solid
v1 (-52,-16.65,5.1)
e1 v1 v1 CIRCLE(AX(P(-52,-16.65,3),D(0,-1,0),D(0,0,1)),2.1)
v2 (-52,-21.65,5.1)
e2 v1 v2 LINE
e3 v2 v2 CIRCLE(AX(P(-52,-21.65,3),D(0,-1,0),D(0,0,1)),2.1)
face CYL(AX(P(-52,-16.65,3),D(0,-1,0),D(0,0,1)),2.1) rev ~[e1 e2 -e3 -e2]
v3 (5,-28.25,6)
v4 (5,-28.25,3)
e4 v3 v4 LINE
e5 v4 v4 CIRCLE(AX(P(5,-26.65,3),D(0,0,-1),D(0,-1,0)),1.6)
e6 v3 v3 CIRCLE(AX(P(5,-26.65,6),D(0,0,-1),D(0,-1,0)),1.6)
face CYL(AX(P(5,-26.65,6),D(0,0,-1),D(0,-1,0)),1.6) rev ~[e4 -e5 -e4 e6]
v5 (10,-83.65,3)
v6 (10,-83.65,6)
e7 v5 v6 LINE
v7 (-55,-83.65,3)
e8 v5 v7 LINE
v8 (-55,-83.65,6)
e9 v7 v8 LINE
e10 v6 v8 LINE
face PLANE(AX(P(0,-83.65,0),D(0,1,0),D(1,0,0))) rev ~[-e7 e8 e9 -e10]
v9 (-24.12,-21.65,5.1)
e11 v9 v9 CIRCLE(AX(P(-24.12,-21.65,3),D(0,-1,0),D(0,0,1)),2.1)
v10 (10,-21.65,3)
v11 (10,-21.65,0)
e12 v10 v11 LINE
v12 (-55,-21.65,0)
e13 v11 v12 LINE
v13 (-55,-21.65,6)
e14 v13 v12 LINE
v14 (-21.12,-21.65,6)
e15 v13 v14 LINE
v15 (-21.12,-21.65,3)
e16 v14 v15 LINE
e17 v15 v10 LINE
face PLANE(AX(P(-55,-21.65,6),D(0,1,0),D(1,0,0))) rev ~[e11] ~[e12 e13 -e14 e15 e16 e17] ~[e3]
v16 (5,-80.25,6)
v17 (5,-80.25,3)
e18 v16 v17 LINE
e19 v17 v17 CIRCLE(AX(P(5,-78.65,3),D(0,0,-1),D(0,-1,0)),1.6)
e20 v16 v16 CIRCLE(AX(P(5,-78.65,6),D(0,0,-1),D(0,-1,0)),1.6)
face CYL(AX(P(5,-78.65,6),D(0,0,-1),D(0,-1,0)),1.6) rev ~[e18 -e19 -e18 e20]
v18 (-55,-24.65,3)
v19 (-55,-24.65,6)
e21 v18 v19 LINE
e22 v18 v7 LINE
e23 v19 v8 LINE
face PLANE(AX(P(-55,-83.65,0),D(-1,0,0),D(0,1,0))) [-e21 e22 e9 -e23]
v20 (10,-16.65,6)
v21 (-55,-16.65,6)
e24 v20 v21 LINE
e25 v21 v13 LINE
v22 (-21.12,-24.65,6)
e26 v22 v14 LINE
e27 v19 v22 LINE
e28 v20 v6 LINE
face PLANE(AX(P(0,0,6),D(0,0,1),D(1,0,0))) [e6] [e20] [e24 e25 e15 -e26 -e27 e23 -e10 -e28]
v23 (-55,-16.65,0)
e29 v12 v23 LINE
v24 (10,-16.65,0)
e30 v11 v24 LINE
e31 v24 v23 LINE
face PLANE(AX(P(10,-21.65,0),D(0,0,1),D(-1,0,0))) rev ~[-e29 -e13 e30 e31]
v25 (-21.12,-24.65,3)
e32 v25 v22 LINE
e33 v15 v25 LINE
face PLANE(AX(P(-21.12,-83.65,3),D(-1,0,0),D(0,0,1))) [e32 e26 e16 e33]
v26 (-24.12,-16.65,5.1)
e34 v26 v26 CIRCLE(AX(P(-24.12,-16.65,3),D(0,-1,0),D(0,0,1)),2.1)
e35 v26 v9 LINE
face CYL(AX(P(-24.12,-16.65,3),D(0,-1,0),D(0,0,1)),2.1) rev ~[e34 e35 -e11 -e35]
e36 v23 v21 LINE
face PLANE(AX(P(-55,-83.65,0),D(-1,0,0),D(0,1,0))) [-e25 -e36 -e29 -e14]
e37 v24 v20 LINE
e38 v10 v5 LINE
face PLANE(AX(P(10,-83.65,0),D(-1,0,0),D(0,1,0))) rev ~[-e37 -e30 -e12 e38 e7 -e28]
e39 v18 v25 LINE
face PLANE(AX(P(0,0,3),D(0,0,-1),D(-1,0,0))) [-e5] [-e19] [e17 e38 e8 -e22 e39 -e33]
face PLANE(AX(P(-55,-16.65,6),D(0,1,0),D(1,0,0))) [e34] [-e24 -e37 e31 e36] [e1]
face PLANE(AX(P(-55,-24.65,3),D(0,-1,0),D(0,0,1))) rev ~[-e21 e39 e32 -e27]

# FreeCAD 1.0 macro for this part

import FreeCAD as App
import Part
import Sketcher
from FreeCAD import Vector


def add_polygon(sketch, points):
    """Adds a closed chain of lines whose ends are joined by coincident constraints."""
    first, n = sketch.GeometryCount, len(points)
    for a, b in zip(points, points[1:] + points[:1]):
        sketch.addGeometry(Part.LineSegment(App.Vector(*a, 0), App.Vector(*b, 0)), False)
    for i in range(n):
        sketch.addConstraint(Sketcher.Constraint("Coincident", first + i, 2, first + (i + 1) % n, 1))

doc = App.newDocument("Part")
body = doc.addObject("PartDesign::Body", "Body")

# Sketch on XY plane
sketch1 = doc.addObject("Sketcher::SketchObject", "Sketch")
body.addObject(sketch1)
sketch1.AttachmentSupport = (doc.XY_Plane, [""])
sketch1.MapMode = "FlatFace"
add_polygon(sketch1, [(10, -83.65), (10, -21.65), (-55, -21.65), (-55, -83.65)])  # lines 0-3
sketch1.addConstraint([
    Sketcher.Constraint("Vertical", 0),
    Sketcher.Constraint("Horizontal", 1),
    Sketcher.Constraint("Vertical", 2),
    Sketcher.Constraint("Horizontal", 3),
    Sketcher.Constraint("DistanceX", -1, 1, 0, 2, 10.0),
    Sketcher.Constraint("DistanceX", 1, 2, 1, 1, 65.0),
    Sketcher.Constraint("DistanceY", 0, 1, 0, 2, 62.0),
    Sketcher.Constraint("DistanceY", 0, 2, -1, 1, 21.65),
])
pad1 = doc.addObject("PartDesign::Pad", "Pad")
body.addObject(pad1)
pad1.Profile = sketch1
pad1.Length = 6

# Sketch on XY plane
sketch2 = doc.addObject("Sketcher::SketchObject", "Sketch001")
body.addObject(sketch2)
sketch2.AttachmentSupport = (doc.XY_Plane, [""])
sketch2.MapMode = "FlatFace"
sketch2.AttachmentOffset = App.Placement(Vector(0, 0, 6), App.Rotation())
sketch2.addGeometry([
    Part.Circle(Vector(5, -78.65, 0), Vector(0, 0, 1), 1.6),
    Part.Circle(Vector(5, -26.65, 0), Vector(0, 0, 1), 1.6),
], False)
sketch2.addConstraint([
    Sketcher.Constraint("Equal", 0, 1),
    Sketcher.Constraint("Vertical", 0, 3, 1, 3),
    Sketcher.Constraint("Diameter", 0, 3.2),
    Sketcher.Constraint("DistanceX", -1, 1, 0, 3, 5.0),
    Sketcher.Constraint("DistanceY", 0, 3, 1, 3, 52.0),
    Sketcher.Constraint("DistanceY", 0, 3, -1, 1, 78.65),
])
doc.recompute()
hole = doc.addObject("PartDesign::Hole", "Hole")
body.addObject(hole)
hole.Profile = sketch2
hole.ThreadType = "None"
hole.Diameter = 3.2
hole.DepthType = "ThroughAll"

# Sketch on XY plane
sketch3 = doc.addObject("Sketcher::SketchObject", "Sketch002")
body.addObject(sketch3)
sketch3.AttachmentSupport = (doc.XY_Plane, [""])
sketch3.MapMode = "FlatFace"
add_polygon(sketch3, [(-55, -83.65), (-55, -21.65), (0, -21.65), (0, 0), (12, 0), (12, -7.15), (30, -7.15), (30, -83.65)])  # lines 0-7
sketch3.addConstraint([
    Sketcher.Constraint("Vertical", 0),
    Sketcher.Constraint("Horizontal", 1),
    Sketcher.Constraint("Vertical", 2),
    Sketcher.Constraint("Horizontal", 3),
    Sketcher.Constraint("Vertical", 4),
    Sketcher.Constraint("Horizontal", 5),
    Sketcher.Constraint("Vertical", 6),
    Sketcher.Constraint("Horizontal", 7),
    Sketcher.Constraint("Coincident", 2, 2, -1, 1),
    Sketcher.Constraint("DistanceX", 1, 1, 1, 2, 55.0),
    Sketcher.Constraint("DistanceX", 3, 1, 3, 2, 12.0),
    Sketcher.Constraint("DistanceX", 5, 1, 5, 2, 18.0),
    Sketcher.Constraint("DistanceY", 0, 1, 0, 2, 62.0),
    Sketcher.Constraint("DistanceY", 6, 2, 6, 1, 76.5),
    Sketcher.Constraint("DistanceY", 2, 1, 2, 2, 21.65),
])
pocket1 = doc.addObject("PartDesign::Pocket", "Pocket")
body.addObject(pocket1)
pocket1.Profile = sketch3
pocket1.Length = 3
pocket1.Reversed = True

# Sketch on XZ plane
sketch4 = doc.addObject("Sketcher::SketchObject", "Sketch003")
body.addObject(sketch4)
sketch4.AttachmentSupport = (doc.XZ_Plane, [""])
sketch4.MapMode = "FlatFace"
sketch4.AttachmentOffset = App.Placement(Vector(0, 0, 21.65), App.Rotation())
add_polygon(sketch4, [(10, 6), (10, 0), (-55, 0), (-55, 6)])  # lines 0-3
sketch4.addConstraint([
    Sketcher.Constraint("Vertical", 0),
    Sketcher.Constraint("Horizontal", 1),
    Sketcher.Constraint("Vertical", 2),
    Sketcher.Constraint("Horizontal", 3),
    Sketcher.Constraint("PointOnObject", 0, 2, -1),
    Sketcher.Constraint("DistanceX", 1, 2, 1, 1, 65.0),
    Sketcher.Constraint("DistanceY", 0, 2, 0, 1, 6.0),
    Sketcher.Constraint("DistanceX", -1, 1, 0, 2, 10.0),
])
pad2 = doc.addObject("PartDesign::Pad", "Pad001")
body.addObject(pad2)
pad2.Profile = sketch4
pad2.Length = 5
pad2.Reversed = True

# Sketch on YZ plane
sketch5 = doc.addObject("Sketcher::SketchObject", "Sketch004")
body.addObject(sketch5)
sketch5.AttachmentSupport = (doc.YZ_Plane, [""])
sketch5.MapMode = "FlatFace"
sketch5.AttachmentOffset = App.Placement(Vector(0, 0, -55), App.Rotation())
add_polygon(sketch5, [(-21.65, 6), (-21.65, 3), (-24.65, 3), (-24.65, 6)])  # lines 0-3
sketch5.addConstraint([
    Sketcher.Constraint("Vertical", 0),
    Sketcher.Constraint("Horizontal", 1),
    Sketcher.Constraint("Vertical", 2),
    Sketcher.Constraint("Horizontal", 3),
    Sketcher.Constraint("Equal", 3, 0),
    Sketcher.Constraint("DistanceX", 1, 2, 1, 1, 3.0),
    Sketcher.Constraint("DistanceY", -1, 1, 0, 2, 3.0),
    Sketcher.Constraint("DistanceX", 0, 2, -1, 1, 21.65),
])
pocket2 = doc.addObject("PartDesign::Pocket", "Pocket001")
body.addObject(pocket2)
pocket2.Profile = sketch5
pocket2.Length = 33.88
pocket2.Reversed = True

# Sketch on XZ plane
sketch6 = doc.addObject("Sketcher::SketchObject", "Sketch005")
body.addObject(sketch6)
sketch6.AttachmentSupport = (doc.XZ_Plane, [""])
sketch6.MapMode = "FlatFace"
sketch6.AttachmentOffset = App.Placement(Vector(0, 0, 16.65), App.Rotation())
sketch6.addGeometry([
    Part.Circle(Vector(-52, 3, 0), Vector(0, 0, 1), 2.1),
    Part.Circle(Vector(-24.12, 3, 0), Vector(0, 0, 1), 2.1),
], False)
sketch6.addConstraint([
    Sketcher.Constraint("Equal", 0, 1),
    Sketcher.Constraint("Horizontal", 0, 3, 1, 3),
    Sketcher.Constraint("Diameter", 0, 4.2),
    Sketcher.Constraint("DistanceX", 0, 3, -1, 1, 52.0),
    Sketcher.Constraint("DistanceY", -1, 1, 0, 3, 3.0),
    Sketcher.Constraint("DistanceX", 1, 3, -1, 1, 24.12),
])
doc.recompute()
hole2 = doc.addObject("PartDesign::Hole", "Hole001")
body.addObject(hole2)
hole2.Profile = sketch6
hole2.ThreadType = "None"
hole2.Diameter = 4.2
hole2.DepthType = "Dimension"
hole2.Depth = 5
hole2.DrillPoint = "Flat"
hole2.Reversed = True

doc.recompute()
